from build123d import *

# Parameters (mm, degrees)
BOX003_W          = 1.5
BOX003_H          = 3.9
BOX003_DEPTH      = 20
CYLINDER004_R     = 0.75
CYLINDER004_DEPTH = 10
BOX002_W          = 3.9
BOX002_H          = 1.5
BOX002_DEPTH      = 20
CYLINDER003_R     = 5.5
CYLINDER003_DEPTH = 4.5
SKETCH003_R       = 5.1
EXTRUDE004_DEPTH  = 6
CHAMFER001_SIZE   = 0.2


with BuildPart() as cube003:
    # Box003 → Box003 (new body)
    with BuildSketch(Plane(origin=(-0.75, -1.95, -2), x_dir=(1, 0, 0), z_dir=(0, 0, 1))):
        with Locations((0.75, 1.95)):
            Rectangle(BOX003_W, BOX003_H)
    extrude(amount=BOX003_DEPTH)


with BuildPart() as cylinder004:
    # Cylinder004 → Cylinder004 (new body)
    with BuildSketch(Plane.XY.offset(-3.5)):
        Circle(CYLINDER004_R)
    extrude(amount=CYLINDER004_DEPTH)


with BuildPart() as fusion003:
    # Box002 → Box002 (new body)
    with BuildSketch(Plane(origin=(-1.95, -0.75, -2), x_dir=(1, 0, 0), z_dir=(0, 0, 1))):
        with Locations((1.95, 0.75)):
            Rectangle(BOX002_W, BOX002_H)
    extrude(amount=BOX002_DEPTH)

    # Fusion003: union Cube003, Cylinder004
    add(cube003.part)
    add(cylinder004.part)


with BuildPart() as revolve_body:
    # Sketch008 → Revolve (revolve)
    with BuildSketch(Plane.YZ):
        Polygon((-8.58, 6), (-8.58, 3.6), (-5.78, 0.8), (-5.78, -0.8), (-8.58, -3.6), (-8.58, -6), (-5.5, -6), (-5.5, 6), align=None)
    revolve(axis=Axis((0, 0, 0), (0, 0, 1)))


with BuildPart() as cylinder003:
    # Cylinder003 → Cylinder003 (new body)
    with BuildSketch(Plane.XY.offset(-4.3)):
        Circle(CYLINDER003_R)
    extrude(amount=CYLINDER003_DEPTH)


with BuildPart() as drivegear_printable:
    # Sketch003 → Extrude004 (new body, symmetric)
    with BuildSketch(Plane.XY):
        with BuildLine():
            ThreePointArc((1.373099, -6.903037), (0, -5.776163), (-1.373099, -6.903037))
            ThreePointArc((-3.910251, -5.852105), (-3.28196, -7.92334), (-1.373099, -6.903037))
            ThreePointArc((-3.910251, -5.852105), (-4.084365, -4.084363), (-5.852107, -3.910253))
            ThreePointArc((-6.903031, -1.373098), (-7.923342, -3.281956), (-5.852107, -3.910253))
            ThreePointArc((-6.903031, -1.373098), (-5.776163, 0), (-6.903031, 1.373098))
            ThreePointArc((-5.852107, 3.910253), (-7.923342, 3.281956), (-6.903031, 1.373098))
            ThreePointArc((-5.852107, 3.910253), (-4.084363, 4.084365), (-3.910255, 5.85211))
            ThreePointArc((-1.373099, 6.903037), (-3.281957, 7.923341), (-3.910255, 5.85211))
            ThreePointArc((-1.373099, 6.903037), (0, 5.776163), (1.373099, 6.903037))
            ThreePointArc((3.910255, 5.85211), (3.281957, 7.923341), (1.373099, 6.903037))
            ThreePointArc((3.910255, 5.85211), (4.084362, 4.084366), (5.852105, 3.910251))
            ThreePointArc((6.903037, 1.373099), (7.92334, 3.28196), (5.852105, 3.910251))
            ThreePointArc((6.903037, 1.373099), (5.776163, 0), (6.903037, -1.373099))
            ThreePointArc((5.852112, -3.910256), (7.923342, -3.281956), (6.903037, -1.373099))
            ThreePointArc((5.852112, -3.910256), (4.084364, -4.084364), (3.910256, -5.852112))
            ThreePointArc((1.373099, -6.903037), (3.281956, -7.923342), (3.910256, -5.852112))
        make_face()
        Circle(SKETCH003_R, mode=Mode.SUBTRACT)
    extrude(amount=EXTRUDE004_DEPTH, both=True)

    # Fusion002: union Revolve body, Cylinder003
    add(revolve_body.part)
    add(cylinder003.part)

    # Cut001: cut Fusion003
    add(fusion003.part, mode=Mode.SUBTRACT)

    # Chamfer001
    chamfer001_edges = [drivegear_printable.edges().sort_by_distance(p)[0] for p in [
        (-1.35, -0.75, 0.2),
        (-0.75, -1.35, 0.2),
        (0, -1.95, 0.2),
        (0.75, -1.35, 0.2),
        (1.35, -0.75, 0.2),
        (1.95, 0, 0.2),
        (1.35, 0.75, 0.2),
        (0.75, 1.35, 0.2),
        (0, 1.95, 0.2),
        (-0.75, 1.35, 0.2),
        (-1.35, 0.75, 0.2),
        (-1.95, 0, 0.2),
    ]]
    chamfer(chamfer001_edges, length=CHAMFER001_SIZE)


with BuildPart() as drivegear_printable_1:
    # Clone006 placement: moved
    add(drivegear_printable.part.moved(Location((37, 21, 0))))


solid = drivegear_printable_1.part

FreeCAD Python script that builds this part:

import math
import FreeCAD as App
import Part
import Sketcher
Q = App.Units.Quantity


def edges_at(feature, points):
    """Names of the edges that pass closest to the given points."""
    edges = feature.Shape.Edges
    near = lambda p: min(range(len(edges)), key=lambda i: edges[i].distToShape(Part.Vertex(*p))[0])
    return sorted({f"Edge{near(p) + 1}" for p in points})

doc = App.newDocument("Part")
params = doc.addObject("Spreadsheet::Sheet", "Params")
for row, (alias, value) in enumerate([
    ("sketch1_width", "1.5 mm"),
    ("sketch1_height", "3.9 mm"),
    ("pad1_length", "20 mm"),
    ("sketch2_diameter", "1.5 mm"),
    ("pad2_length", "10 mm"),
    ("sketch3_width", "3.9 mm"),
    ("sketch3_height", "1.5 mm"),
    ("pad3_length", "20 mm"),
    ("sketch4_height", "12 mm"),
    ("sketch4_height2", "2.4 mm"),
    ("sketch4_height3", "1.6 mm"),
    ("sketch4_width", "3.08 mm"),
    ("revolution_angle", "360 deg"),
    ("sketch5_diameter", "11 mm"),
    ("pad4_length", "4.5 mm"),
    ("sketch6_diameter", "10.2 mm"),
    ("sketch6_radius", "1.399999 mm"),
    ("pad5_length", "12 mm"),
    ("chamfer_size", "0.2 mm"),
], start=1):
    params.set(f"A{row}", alias)
    params.set(f"B{row}", "=" + value)
    params.setAlias(f"B{row}", alias)

body = doc.addObject("PartDesign::Body", "Body")

# Sketch on XY plane
sketch1 = body.newObject("Sketcher::SketchObject", "Sketch")
sketch1.AttachmentSupport = (doc.getObject("XY_Plane"), [""])
sketch1.MapMode = "FlatFace"
sketch1.AttachmentOffset = App.Placement(App.Vector(0, 0, -2), App.Rotation())
sketch1.addGeometry([
    Part.LineSegment(App.Vector(-0.8, 1.9, 0), App.Vector(-0.8, -1.9, 0)),
    Part.LineSegment(App.Vector(-0.8, -1.9, 0), App.Vector(0.8, -1.9, 0)),
    Part.LineSegment(App.Vector(0.8, -1.9, 0), App.Vector(0.8, 1.9, 0)),
    Part.LineSegment(App.Vector(0.8, 1.9, 0), App.Vector(-0.8, 1.9, 0)),
], False)
sketch1.addConstraint([
    Sketcher.Constraint("Coincident", 0, 2, 1, 1),
    Sketcher.Constraint("Coincident", 1, 2, 2, 1),
    Sketcher.Constraint("Coincident", 2, 2, 3, 1),
    Sketcher.Constraint("Coincident", 3, 2, 0, 1),
    Sketcher.Constraint("Vertical", 0),
    Sketcher.Constraint("Horizontal", 1),
    Sketcher.Constraint("Vertical", 2),
    Sketcher.Constraint("Horizontal", 3),
    Sketcher.Constraint("Symmetric", 0, 2, 2, 2, -1, 1),
    Sketcher.Constraint("DistanceX", 1, 1, 1, 2, Q("1.5 mm")),
    Sketcher.Constraint("DistanceY", 0, 2, 0, 1, Q("3.9 mm")),
])
sketch1.setExpression("Constraints[9]", "Params.sketch1_width")
sketch1.setExpression("Constraints[10]", "Params.sketch1_height")
pad1 = body.newObject("PartDesign::Pad", "Pad")
pad1.Profile = sketch1
pad1.setExpression("Length", "Params.pad1_length")
body2 = doc.addObject("PartDesign::Body", "Body001")

# Sketch on XY plane
sketch2 = body2.newObject("Sketcher::SketchObject", "Sketch001")
sketch2.AttachmentSupport = (doc.getObject("XY_Plane001"), [""])
sketch2.MapMode = "FlatFace"
sketch2.AttachmentOffset = App.Placement(App.Vector(0, 0, -3.5), App.Rotation())
sketch2.addGeometry(Part.Circle(App.Vector(0, 0, 0), App.Vector(0, 0, 1), 0.8), False)
sketch2.addConstraint([
    Sketcher.Constraint("Coincident", 0, 3, -1, 1),
    Sketcher.Constraint("Diameter", 0, Q("1.5 mm")),
])
sketch2.setExpression("Constraints[1]", "Params.sketch2_diameter")
pad2 = body2.newObject("PartDesign::Pad", "Pad001")
pad2.Profile = sketch2
pad2.setExpression("Length", "Params.pad2_length")
body3 = doc.addObject("PartDesign::Body", "Body002")

# Sketch on XY plane
sketch3 = body3.newObject("Sketcher::SketchObject", "Sketch002")
sketch3.AttachmentSupport = (doc.getObject("XY_Plane002"), [""])
sketch3.MapMode = "FlatFace"
sketch3.AttachmentOffset = App.Placement(App.Vector(0, 0, -2), App.Rotation())
sketch3.addGeometry([
    Part.LineSegment(App.Vector(-1.9, 0.8, 0), App.Vector(-1.9, -0.8, 0)),
    Part.LineSegment(App.Vector(-1.9, -0.8, 0), App.Vector(1.9, -0.8, 0)),
    Part.LineSegment(App.Vector(1.9, -0.8, 0), App.Vector(1.9, 0.8, 0)),
    Part.LineSegment(App.Vector(1.9, 0.8, 0), App.Vector(-1.9, 0.8, 0)),
], False)
sketch3.addConstraint([
    Sketcher.Constraint("Coincident", 0, 2, 1, 1),
    Sketcher.Constraint("Coincident", 1, 2, 2, 1),
    Sketcher.Constraint("Coincident", 2, 2, 3, 1),
    Sketcher.Constraint("Coincident", 3, 2, 0, 1),
    Sketcher.Constraint("Vertical", 0),
    Sketcher.Constraint("Horizontal", 1),
    Sketcher.Constraint("Vertical", 2),
    Sketcher.Constraint("Horizontal", 3),
    Sketcher.Constraint("Symmetric", 0, 2, 2, 2, -1, 1),
    Sketcher.Constraint("DistanceX", 1, 1, 1, 2, Q("3.9 mm")),
    Sketcher.Constraint("DistanceY", 0, 2, 0, 1, Q("1.5 mm")),
])
sketch3.setExpression("Constraints[9]", "Params.sketch3_width")
sketch3.setExpression("Constraints[10]", "Params.sketch3_height")
pad3 = body3.newObject("PartDesign::Pad", "Pad002")
pad3.Profile = sketch3
pad3.setExpression("Length", "Params.pad3_length")
doc.recompute()

boolean = body3.newObject("PartDesign::Boolean", "Boolean")
boolean.Type = "Fuse"
boolean.addObjects([body])
doc.recompute()

boolean2 = body3.newObject("PartDesign::Boolean", "Boolean001")
boolean2.Type = "Fuse"
boolean2.addObjects([body2])
body4 = doc.addObject("PartDesign::Body", "Body003")

# Sketch on YZ plane
sketch4 = body4.newObject("Sketcher::SketchObject", "Sketch003")
sketch4.AttachmentSupport = (doc.getObject("YZ_Plane003"), [""])
sketch4.MapMode = "FlatFace"
sketch4.addGeometry([
    Part.LineSegment(App.Vector(-8.6, 6, 0), App.Vector(-8.6, 3.6, 0)),  # 0
    Part.LineSegment(App.Vector(-8.6, 3.6, 0), App.Vector(-5.8, 0.8, 0)),  # 1
    Part.LineSegment(App.Vector(-5.8, 0.8, 0), App.Vector(-5.8, -0.8, 0)),  # 2
    Part.LineSegment(App.Vector(-5.8, -0.8, 0), App.Vector(-8.6, -3.6, 0)),  # 3
    Part.LineSegment(App.Vector(-8.6, -3.6, 0), App.Vector(-8.6, -6, 0)),  # 4
    Part.LineSegment(App.Vector(-8.6, -6, 0), App.Vector(-5.5, -6, 0)),  # 5
    Part.LineSegment(App.Vector(-5.5, -6, 0), App.Vector(-5.5, 6, 0)),  # 6
    Part.LineSegment(App.Vector(-5.5, 6, 0), App.Vector(-8.6, 6, 0)),  # 7
], False)
sketch4.addConstraint([
    Sketcher.Constraint("Coincident", 0, 2, 1, 1),
    Sketcher.Constraint("Coincident", 1, 2, 2, 1),
    Sketcher.Constraint("Coincident", 2, 2, 3, 1),
    Sketcher.Constraint("Coincident", 3, 2, 4, 1),
    Sketcher.Constraint("Coincident", 4, 2, 5, 1),
    Sketcher.Constraint("Coincident", 5, 2, 6, 1),
    Sketcher.Constraint("Coincident", 6, 2, 7, 1),
    Sketcher.Constraint("Coincident", 7, 2, 0, 1),
    Sketcher.Constraint("Vertical", 0),
    Sketcher.Constraint("Vertical", 2),
    Sketcher.Constraint("Vertical", 4),
    Sketcher.Constraint("Horizontal", 5),
    Sketcher.Constraint("Vertical", 6),
    Sketcher.Constraint("Horizontal", 7),
    Sketcher.Constraint("Symmetric", 0, 2, 3, 2, -1),
    Sketcher.Constraint("Perpendicular", 1, 3),
    Sketcher.Constraint("Equal", 0, 4),
    Sketcher.Constraint("Equal", 1, 3),
    Sketcher.Constraint("DistanceY", 6, 1, 6, 2, Q("12 mm")),
    Sketcher.Constraint("DistanceY", 0, 2, 0, 1, Q("2.4 mm")),
    Sketcher.Constraint("DistanceY", 2, 2, 2, 1, Q("1.6 mm")),
    Sketcher.Constraint("DistanceX", 5, 1, 5, 2, Q("3.08 mm")),
    Sketcher.Constraint("DistanceX", 5, 2, -1, 1, Q("5.5 mm")),
])
sketch4.setExpression("Constraints[18]", "Params.sketch4_height")
sketch4.setExpression("Constraints[19]", "Params.sketch4_height2")
sketch4.setExpression("Constraints[20]", "Params.sketch4_height3")
sketch4.setExpression("Constraints[21]", "Params.sketch4_width")
revolution = body4.newObject("PartDesign::Revolution", "Revolution")
revolution.Profile = sketch4
revolution.ReferenceAxis = (sketch4, ["V_Axis"])
revolution.setExpression("Angle", "Params.revolution_angle")
body5 = doc.addObject("PartDesign::Body", "Body004")

# Sketch on XY plane
sketch5 = body5.newObject("Sketcher::SketchObject", "Sketch004")
sketch5.AttachmentSupport = (doc.getObject("XY_Plane004"), [""])
sketch5.MapMode = "FlatFace"
sketch5.AttachmentOffset = App.Placement(App.Vector(0, 0, -4.3), App.Rotation())
sketch5.addGeometry(Part.Circle(App.Vector(0, 0, 0), App.Vector(0, 0, 1), 6), False)
sketch5.addConstraint([
    Sketcher.Constraint("Coincident", 0, 3, -1, 1),
    Sketcher.Constraint("Diameter", 0, Q("11 mm")),
])
sketch5.setExpression("Constraints[1]", "Params.sketch5_diameter")
pad4 = body5.newObject("PartDesign::Pad", "Pad003")
pad4.Profile = sketch5
pad4.setExpression("Length", "Params.pad4_length")
body6 = doc.addObject("PartDesign::Body", "Body005")

# Sketch on XY plane
sketch6 = body6.newObject("Sketcher::SketchObject", "Sketch005")
sketch6.AttachmentSupport = (doc.getObject("XY_Plane005"), [""])
sketch6.MapMode = "FlatFace"
sketch6.addGeometry([
    Part.ArcOfCircle(Part.Circle(App.Vector(0, -7.2, 0), App.Vector(0, 0, 1), 1.4), math.radians(11), math.radians(169)),  # 0
    Part.ArcOfCircle(Part.Circle(App.Vector(2.7, -6.6, 0), App.Vector(0, 0, 1), 1.4), math.radians(-169), math.radians(34)),  # 1
    Part.ArcOfCircle(Part.Circle(App.Vector(5.1, -5.1, 0), App.Vector(0, 0, 1), 1.4), math.radians(56), math.radians(214)),  # 2
    Part.ArcOfCircle(Part.Circle(App.Vector(6.6, -2.7, 0), App.Vector(0, 0, 1), 1.4), math.radians(-124), math.radians(79)),  # 3
    Part.ArcOfCircle(Part.Circle(App.Vector(7.2, 0, 0), App.Vector(0, 0, 1), 1.4), math.radians(101), math.radians(259)),  # 4
    Part.ArcOfCircle(Part.Circle(App.Vector(6.6, 2.7, 0), App.Vector(0, 0, 1), 1.4), math.radians(-79), math.radians(124)),  # 5
    Part.ArcOfCircle(Part.Circle(App.Vector(5.1, 5.1, 0), App.Vector(0, 0, 1), 1.4), math.radians(146), math.radians(304)),  # 6
    Part.ArcOfCircle(Part.Circle(App.Vector(2.7, 6.6, 0), App.Vector(0, 0, 1), 1.4), math.radians(-34), math.radians(169)),  # 7
    Part.ArcOfCircle(Part.Circle(App.Vector(0, 7.2, 0), App.Vector(0, 0, 1), 1.4), math.radians(-169), math.radians(-11)),  # 8
    Part.ArcOfCircle(Part.Circle(App.Vector(-2.7, 6.6, 0), App.Vector(0, 0, 1), 1.4), math.radians(11), math.radians(214)),  # 9
    Part.ArcOfCircle(Part.Circle(App.Vector(-5.1, 5.1, 0), App.Vector(0, 0, 1), 1.4), math.radians(-124), math.radians(34)),  # 10
    Part.ArcOfCircle(Part.Circle(App.Vector(-6.6, 2.7, 0), App.Vector(0, 0, 1), 1.4), math.radians(56), math.radians(259)),  # 11
    Part.ArcOfCircle(Part.Circle(App.Vector(-7.2, 0, 0), App.Vector(0, 0, 1), 1.4), math.radians(-79), math.radians(79)),  # 12
    Part.ArcOfCircle(Part.Circle(App.Vector(-6.6, -2.7, 0), App.Vector(0, 0, 1), 1.4), math.radians(101), math.radians(304)),  # 13
    Part.ArcOfCircle(Part.Circle(App.Vector(-5.1, -5.1, 0), App.Vector(0, 0, 1), 1.4), math.radians(-34), math.radians(124)),  # 14
    Part.ArcOfCircle(Part.Circle(App.Vector(-2.7, -6.6, 0), App.Vector(0, 0, 1), 1.4), math.radians(146), math.radians(349)),  # 15
    Part.Circle(App.Vector(0, 0, 0), App.Vector(0, 0, 1), 5.1),  # 16
], False)
sketch6.addConstraint([
    Sketcher.Constraint("Tangent", 0, 1, 1, 1),
    Sketcher.Constraint("Tangent", 1, 2, 2, 2),
    Sketcher.Constraint("Tangent", 2, 1, 3, 1),
    Sketcher.Constraint("Tangent", 3, 2, 4, 2),
    Sketcher.Constraint("Tangent", 4, 1, 5, 1),
    Sketcher.Constraint("Coincident", 5, 2, 6, 2),
    Sketcher.Constraint("Coincident", 6, 1, 7, 1),
    Sketcher.Constraint("Tangent", 7, 2, 8, 2),
    Sketcher.Constraint("Tangent", 8, 1, 9, 1),
    Sketcher.Constraint("Coincident", 9, 2, 10, 2),
    Sketcher.Constraint("Coincident", 10, 1, 11, 1),
    Sketcher.Constraint("Coincident", 11, 2, 12, 2),
    Sketcher.Constraint("Coincident", 12, 1, 13, 1),
    Sketcher.Constraint("Coincident", 13, 2, 14, 2),
    Sketcher.Constraint("Coincident", 14, 1, 15, 1),
    Sketcher.Constraint("Tangent", 15, 2, 0, 2),
    Sketcher.Constraint("Coincident", 16, 3, -1, 1),
    Sketcher.Constraint("Equal", 0, 1),
    Sketcher.Constraint("Equal", 1, 2),
    Sketcher.Constraint("Equal", 2, 3),
    Sketcher.Constraint("Equal", 3, 4),
    Sketcher.Constraint("Equal", 4, 5),
    Sketcher.Constraint("Equal", 5, 6),
    Sketcher.Constraint("Equal", 6, 7),
    Sketcher.Constraint("Equal", 7, 8),
    Sketcher.Constraint("Equal", 8, 9),
    Sketcher.Constraint("Equal", 9, 10),
    Sketcher.Constraint("Equal", 10, 11),
    Sketcher.Constraint("Equal", 11, 12),
    Sketcher.Constraint("Equal", 12, 13),
    Sketcher.Constraint("Equal", 13, 14),
    Sketcher.Constraint("Equal", 14, 15),
    Sketcher.Constraint("Symmetric", 0, 3, 8, 3, -1, 1),
    Sketcher.Constraint("Symmetric", 2, 3, 10, 3, -1, 1),
    Sketcher.Constraint("Symmetric", 4, 3, 12, 3, -1, 1),
    Sketcher.Constraint("Symmetric", 6, 3, 14, 3, -1, 1),
    Sketcher.Constraint("Symmetric", 7, 3, 9, 3, -2),
    Sketcher.Constraint("Symmetric", 5, 3, 11, 3, -2),
    Sketcher.Constraint("Horizontal", 6, 1, 9, 2),
    Sketcher.Constraint("Horizontal", 4, 1, 11, 2),
    Sketcher.Constraint("Horizontal", 3, 2, 12, 1),
    Sketcher.Constraint("Vertical", 1, 2, 6, 1),
    Sketcher.Constraint("Vertical", 10, 1, 13, 2),
    Sketcher.Constraint("Diameter", 16, Q("10.2 mm")),
    Sketcher.Constraint("Radius", 0, Q("1.399999 mm")),
    Sketcher.Constraint("DistanceX", -1, 1, 1, 3, Q("2.746199 mm")),
    Sketcher.Constraint("DistanceY", 3, 3, -1, 1, Q("2.746199 mm")),
    Sketcher.Constraint("DistanceY", 1, 2, 2, 3, Q("0.777798 mm")),
    Sketcher.Constraint("DistanceX", 2, 3, 2, 1, Q("0.777798 mm")),
    Sketcher.Constraint("DistanceY", -1, 1, 5, 2, Q("3.910251 mm")),
    Sketcher.Constraint("DistanceX", 14, 1, -1, 1, Q("3.910251 mm")),
    Sketcher.Constraint("DistanceY", 10, 1, 10, 3, Q("1.16406 mm")),
])
sketch6.setExpression("Constraints[43]", "Params.sketch6_diameter")
sketch6.setExpression("Constraints[44]", "Params.sketch6_radius")
pad5 = body6.newObject("PartDesign::Pad", "Pad004")
pad5.Profile = sketch6
pad5.setExpression("Length", "Params.pad5_length")
pad5.Midplane = True
doc.recompute()

boolean3 = body6.newObject("PartDesign::Boolean", "Boolean002")
boolean3.Type = "Fuse"
boolean3.addObjects([body4])
doc.recompute()

boolean4 = body6.newObject("PartDesign::Boolean", "Boolean003")
boolean4.Type = "Fuse"
boolean4.addObjects([body5])
doc.recompute()

boolean5 = body6.newObject("PartDesign::Boolean", "Boolean004")
boolean5.Type = "Cut"
boolean5.addObjects([body3])
doc.recompute()

chamfer = body6.newObject("PartDesign::Chamfer", "Chamfer")
chamfer.Base = (boolean5, edges_at(boolean5, [
    (-1.35, -0.75, 0.2),
    (-0.75, -1.35, 0.2),
    (0, -1.95, 0.2),
    (0.75, -1.35, 0.2),
    (1.35, -0.75, 0.2),
    (1.95, 0, 0.2),
    (1.35, 0.75, 0.2),
    (0.75, 1.35, 0.2),
    (0, 1.95, 0.2),
    (-0.75, 1.35, 0.2),
    (-1.35, 0.75, 0.2),
    (-1.95, 0, 0.2),
]))
chamfer.setExpression("Size", "Params.chamfer_size")
body7 = doc.addObject("PartDesign::Body", "Body006")
doc.recompute()

body6.Placement = App.Placement(App.Vector(37, 21, 0), App.Rotation(App.Vector(0, 0, 1), 0))
boolean6 = body7.newObject("PartDesign::Boolean", "Boolean005")
boolean6.Type = "Fuse"
boolean6.addObjects([body6])

doc.recompute()
